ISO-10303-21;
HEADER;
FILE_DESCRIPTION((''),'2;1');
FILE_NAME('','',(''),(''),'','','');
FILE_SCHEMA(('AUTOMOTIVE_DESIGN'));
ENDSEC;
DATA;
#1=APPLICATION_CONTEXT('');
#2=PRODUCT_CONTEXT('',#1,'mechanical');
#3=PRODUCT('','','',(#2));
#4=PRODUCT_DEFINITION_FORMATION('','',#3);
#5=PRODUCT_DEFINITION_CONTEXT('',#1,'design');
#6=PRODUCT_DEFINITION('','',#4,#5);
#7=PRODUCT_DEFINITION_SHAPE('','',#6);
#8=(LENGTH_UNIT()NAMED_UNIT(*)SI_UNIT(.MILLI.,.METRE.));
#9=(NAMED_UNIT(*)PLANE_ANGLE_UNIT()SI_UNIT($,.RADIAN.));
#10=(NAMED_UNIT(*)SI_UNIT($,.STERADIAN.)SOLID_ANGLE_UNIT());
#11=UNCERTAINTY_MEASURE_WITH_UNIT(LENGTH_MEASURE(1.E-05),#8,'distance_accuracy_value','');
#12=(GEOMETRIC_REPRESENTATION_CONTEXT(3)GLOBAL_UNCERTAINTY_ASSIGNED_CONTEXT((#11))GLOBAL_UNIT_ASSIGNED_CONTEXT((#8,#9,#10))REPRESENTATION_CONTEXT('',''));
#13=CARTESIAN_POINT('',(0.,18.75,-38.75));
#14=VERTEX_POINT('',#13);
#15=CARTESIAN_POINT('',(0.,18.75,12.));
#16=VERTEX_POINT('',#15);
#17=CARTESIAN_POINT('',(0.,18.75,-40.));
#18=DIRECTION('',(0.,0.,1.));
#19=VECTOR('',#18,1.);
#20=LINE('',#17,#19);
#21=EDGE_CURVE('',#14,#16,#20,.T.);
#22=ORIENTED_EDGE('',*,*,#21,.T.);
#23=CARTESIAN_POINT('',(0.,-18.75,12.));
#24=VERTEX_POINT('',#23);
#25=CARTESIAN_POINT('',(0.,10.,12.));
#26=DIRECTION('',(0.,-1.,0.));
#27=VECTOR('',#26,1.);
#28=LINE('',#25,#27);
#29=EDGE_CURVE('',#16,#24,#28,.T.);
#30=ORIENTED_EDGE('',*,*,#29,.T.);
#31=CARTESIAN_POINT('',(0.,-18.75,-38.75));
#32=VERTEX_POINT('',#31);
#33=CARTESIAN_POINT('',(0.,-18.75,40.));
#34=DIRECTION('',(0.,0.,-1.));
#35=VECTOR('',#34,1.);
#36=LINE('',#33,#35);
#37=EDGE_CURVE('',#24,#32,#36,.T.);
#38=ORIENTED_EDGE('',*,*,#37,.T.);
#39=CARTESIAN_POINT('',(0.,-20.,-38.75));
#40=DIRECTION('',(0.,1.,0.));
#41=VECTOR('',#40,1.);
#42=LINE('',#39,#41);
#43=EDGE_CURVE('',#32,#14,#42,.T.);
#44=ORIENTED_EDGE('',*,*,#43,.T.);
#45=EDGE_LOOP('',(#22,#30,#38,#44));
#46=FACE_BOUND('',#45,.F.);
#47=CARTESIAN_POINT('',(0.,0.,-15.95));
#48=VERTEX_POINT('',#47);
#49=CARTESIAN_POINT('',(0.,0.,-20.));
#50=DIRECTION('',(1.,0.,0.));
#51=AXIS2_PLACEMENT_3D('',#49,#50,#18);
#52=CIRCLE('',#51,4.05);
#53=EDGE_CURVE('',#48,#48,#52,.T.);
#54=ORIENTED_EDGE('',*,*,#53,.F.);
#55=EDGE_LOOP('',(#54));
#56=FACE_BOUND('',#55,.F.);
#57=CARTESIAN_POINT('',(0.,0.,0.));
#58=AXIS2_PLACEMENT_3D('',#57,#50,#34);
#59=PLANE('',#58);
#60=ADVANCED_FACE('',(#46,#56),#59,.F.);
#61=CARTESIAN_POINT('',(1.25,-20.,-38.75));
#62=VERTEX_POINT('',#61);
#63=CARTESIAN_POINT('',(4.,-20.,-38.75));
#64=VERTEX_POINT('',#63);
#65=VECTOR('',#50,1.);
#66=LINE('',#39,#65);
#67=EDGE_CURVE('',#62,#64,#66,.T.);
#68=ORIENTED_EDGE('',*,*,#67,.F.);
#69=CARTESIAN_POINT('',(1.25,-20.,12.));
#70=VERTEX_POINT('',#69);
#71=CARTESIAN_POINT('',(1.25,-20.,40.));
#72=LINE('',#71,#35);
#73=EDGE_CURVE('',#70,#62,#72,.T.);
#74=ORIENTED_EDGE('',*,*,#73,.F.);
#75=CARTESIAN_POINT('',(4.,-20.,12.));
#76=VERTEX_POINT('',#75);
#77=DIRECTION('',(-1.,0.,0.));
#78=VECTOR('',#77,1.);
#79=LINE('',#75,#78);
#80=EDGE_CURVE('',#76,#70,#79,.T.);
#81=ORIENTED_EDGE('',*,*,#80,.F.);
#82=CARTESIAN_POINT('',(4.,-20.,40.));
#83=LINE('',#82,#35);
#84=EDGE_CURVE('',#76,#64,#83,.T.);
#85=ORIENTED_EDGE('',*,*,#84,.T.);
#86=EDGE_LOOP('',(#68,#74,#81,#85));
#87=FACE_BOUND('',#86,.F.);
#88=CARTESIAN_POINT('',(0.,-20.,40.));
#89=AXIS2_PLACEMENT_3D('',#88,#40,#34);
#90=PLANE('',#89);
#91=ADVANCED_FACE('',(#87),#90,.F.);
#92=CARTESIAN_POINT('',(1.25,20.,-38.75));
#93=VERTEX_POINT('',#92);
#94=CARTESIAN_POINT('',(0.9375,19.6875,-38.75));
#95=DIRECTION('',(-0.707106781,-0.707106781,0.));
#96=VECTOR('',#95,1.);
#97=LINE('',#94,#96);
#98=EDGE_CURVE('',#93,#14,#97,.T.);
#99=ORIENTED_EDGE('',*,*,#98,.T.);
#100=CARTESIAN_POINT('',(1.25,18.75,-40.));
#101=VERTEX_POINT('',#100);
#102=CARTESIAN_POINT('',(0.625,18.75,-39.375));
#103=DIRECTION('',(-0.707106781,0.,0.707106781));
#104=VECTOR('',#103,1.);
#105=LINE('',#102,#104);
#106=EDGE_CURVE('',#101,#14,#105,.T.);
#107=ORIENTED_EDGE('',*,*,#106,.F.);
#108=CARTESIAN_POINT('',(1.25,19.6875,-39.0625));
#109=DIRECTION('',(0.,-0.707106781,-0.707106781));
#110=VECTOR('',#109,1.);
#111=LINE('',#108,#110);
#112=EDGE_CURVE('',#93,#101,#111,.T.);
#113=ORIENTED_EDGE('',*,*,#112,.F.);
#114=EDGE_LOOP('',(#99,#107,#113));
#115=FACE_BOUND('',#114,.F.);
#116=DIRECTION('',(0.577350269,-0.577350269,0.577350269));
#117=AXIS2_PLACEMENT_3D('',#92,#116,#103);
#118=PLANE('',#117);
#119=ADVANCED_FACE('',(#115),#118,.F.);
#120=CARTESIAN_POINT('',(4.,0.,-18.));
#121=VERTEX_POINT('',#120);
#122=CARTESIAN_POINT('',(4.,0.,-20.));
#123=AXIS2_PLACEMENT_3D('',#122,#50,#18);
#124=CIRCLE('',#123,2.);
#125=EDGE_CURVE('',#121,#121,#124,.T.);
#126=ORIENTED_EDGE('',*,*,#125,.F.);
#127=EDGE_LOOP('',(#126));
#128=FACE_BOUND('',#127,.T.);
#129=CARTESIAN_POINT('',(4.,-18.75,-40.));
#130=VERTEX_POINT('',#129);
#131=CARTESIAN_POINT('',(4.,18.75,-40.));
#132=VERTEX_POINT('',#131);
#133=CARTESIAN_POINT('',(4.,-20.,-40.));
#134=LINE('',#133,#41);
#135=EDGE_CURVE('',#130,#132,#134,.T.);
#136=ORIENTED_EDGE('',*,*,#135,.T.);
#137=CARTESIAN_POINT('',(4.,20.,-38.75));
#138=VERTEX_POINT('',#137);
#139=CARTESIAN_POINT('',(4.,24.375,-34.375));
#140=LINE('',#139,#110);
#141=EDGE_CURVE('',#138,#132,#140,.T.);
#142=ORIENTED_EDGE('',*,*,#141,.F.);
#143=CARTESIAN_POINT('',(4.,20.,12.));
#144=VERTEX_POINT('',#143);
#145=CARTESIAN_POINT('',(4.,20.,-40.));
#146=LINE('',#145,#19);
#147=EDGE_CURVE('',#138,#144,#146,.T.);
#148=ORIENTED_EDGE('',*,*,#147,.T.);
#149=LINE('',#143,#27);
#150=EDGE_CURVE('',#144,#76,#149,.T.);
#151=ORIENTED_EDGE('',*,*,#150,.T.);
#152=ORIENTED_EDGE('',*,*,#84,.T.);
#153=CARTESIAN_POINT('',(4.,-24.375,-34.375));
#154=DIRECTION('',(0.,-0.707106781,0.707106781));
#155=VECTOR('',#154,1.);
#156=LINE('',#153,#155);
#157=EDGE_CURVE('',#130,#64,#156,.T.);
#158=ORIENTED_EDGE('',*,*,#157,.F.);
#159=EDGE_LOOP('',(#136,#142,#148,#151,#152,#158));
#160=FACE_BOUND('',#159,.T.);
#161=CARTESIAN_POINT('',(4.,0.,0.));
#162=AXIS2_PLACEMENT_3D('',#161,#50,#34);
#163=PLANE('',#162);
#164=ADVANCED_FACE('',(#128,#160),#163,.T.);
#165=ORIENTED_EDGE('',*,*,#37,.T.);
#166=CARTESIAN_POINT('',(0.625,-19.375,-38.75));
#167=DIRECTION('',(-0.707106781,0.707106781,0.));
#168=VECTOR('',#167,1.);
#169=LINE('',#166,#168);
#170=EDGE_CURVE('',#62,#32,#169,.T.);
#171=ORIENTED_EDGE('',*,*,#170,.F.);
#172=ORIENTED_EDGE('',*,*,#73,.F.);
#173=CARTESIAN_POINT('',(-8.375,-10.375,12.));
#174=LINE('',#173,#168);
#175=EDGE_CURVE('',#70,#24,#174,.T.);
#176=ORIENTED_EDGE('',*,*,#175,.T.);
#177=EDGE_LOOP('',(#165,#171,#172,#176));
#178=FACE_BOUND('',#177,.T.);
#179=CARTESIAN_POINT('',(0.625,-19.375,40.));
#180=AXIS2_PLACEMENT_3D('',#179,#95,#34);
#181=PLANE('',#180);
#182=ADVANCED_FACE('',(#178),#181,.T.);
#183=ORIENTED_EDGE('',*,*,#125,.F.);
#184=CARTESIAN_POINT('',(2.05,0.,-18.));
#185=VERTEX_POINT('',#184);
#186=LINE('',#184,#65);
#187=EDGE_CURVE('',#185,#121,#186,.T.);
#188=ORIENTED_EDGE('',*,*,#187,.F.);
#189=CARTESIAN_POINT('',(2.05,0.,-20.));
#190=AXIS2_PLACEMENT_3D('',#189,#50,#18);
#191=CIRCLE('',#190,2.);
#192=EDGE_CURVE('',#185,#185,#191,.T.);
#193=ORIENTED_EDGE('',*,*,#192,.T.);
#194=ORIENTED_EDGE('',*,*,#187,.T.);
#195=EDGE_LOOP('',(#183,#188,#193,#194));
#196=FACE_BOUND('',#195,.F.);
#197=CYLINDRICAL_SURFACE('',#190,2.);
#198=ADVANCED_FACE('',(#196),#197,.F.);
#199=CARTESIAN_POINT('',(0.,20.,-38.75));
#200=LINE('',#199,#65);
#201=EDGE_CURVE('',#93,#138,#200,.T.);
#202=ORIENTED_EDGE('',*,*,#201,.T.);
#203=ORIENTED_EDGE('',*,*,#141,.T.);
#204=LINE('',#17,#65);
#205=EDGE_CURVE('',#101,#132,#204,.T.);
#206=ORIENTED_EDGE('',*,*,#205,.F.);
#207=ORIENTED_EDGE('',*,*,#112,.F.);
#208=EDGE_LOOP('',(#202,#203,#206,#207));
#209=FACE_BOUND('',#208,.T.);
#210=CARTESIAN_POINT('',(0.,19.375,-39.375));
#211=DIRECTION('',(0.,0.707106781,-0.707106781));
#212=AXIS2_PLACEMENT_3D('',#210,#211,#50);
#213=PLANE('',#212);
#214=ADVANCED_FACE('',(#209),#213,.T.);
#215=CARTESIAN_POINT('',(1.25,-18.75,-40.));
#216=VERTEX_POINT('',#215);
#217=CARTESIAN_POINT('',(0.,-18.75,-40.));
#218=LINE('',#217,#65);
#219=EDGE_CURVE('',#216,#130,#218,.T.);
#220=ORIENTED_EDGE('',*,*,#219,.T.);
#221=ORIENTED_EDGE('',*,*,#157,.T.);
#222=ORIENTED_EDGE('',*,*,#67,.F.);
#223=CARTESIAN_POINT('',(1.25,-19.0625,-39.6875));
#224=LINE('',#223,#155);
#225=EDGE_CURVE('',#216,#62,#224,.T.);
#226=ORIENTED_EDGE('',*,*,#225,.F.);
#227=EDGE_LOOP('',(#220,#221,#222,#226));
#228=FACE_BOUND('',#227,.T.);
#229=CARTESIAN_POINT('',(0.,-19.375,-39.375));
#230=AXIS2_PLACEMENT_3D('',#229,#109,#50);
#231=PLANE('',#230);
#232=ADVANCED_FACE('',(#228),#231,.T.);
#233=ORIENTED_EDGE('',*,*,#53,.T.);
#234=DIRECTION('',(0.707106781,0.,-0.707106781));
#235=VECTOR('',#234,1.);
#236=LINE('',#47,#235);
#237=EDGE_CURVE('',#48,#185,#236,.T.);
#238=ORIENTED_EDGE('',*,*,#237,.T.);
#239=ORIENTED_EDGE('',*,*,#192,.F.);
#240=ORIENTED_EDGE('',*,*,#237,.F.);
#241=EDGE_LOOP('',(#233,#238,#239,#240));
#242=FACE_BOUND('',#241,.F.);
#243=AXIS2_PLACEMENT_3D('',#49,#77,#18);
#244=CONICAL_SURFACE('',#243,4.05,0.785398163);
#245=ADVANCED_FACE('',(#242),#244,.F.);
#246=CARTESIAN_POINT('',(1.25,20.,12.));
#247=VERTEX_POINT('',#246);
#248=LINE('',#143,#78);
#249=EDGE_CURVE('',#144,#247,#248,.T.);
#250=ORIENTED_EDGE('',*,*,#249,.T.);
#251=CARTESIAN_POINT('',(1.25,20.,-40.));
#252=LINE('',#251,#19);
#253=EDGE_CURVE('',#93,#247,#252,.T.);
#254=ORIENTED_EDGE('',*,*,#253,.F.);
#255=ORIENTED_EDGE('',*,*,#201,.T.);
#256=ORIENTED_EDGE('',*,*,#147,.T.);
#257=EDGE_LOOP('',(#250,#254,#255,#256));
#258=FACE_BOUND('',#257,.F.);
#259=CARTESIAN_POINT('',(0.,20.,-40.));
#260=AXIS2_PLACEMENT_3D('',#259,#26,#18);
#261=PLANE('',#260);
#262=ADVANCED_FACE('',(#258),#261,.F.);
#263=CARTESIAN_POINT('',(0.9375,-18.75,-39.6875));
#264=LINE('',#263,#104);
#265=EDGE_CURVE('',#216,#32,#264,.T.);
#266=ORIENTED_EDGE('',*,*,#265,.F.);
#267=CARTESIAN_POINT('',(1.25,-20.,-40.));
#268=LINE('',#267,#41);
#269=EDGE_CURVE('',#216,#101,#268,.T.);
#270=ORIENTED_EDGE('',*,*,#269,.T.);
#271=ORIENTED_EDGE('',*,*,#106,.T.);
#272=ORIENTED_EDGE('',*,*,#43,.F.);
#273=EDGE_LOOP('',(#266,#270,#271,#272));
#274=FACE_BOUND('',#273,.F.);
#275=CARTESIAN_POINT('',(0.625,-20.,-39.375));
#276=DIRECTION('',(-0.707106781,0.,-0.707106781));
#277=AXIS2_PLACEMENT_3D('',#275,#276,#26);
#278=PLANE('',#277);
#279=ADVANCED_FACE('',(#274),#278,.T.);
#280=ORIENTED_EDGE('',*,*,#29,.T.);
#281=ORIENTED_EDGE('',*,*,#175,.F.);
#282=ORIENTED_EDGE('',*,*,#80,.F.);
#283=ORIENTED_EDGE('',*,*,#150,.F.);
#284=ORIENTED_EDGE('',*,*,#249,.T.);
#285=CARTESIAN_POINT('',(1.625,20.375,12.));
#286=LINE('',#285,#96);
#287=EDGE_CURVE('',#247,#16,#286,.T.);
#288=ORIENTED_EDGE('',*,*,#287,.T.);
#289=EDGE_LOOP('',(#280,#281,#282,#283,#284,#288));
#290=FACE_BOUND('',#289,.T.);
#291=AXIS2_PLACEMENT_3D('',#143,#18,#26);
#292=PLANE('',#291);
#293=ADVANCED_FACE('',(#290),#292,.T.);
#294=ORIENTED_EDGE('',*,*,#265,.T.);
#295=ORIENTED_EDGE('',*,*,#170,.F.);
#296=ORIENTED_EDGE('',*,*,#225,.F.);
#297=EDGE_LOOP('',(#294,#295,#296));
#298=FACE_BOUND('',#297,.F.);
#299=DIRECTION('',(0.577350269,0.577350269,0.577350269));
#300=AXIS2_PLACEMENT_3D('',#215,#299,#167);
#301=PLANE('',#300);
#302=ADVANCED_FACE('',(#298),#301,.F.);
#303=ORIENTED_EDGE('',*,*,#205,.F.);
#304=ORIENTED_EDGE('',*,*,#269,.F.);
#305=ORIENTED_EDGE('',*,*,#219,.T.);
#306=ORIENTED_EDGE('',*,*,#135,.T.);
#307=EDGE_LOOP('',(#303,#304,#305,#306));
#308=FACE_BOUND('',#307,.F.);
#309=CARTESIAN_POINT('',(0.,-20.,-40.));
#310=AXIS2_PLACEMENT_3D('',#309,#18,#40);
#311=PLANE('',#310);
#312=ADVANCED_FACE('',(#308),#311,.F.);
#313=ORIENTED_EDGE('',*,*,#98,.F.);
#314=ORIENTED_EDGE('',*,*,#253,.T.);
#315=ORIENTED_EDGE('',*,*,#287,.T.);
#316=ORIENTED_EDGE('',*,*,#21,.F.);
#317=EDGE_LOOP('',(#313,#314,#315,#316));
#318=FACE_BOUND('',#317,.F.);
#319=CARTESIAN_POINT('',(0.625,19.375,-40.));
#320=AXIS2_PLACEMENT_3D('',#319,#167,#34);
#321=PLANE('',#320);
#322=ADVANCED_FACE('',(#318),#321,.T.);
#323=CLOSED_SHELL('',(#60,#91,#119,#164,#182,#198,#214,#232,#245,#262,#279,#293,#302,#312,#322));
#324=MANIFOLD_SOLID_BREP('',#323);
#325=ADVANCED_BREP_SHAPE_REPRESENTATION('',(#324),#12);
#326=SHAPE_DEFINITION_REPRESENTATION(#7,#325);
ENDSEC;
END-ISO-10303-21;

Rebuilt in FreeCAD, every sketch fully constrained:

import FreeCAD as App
import Part
import Sketcher


def edges_at(feature, points):
    """Names of the edges that pass closest to the given points."""
    edges = feature.Shape.Edges
    near = lambda p: min(range(len(edges)), key=lambda i: edges[i].distToShape(Part.Vertex(*p))[0])
    return sorted({f"Edge{near(p) + 1}" for p in points})


def add_polygon(sketch, points):
    """Adds a closed chain of lines whose ends are joined by coincident constraints."""
    first, n = sketch.GeometryCount, len(points)
    for a, b in zip(points, points[1:] + points[:1]):
        sketch.addGeometry(Part.LineSegment(App.Vector(*a, 0), App.Vector(*b, 0)), False)
    for i in range(n):
        sketch.addConstraint(Sketcher.Constraint("Coincident", first + i, 2, first + (i + 1) % n, 1))

doc = App.newDocument("Part")
body = doc.addObject("PartDesign::Body", "Body")

# Sketch on YZ plane
sketch1 = body.newObject("Sketcher::SketchObject", "Sketch")
sketch1.AttachmentSupport = (doc.getObject("YZ_Plane"), [""])
sketch1.MapMode = "FlatFace"
add_polygon(sketch1, [(20, -40), (20, 40), (-20, 40), (-20, -40)])  # lines 0-3
sketch1.addConstraint([
    Sketcher.Constraint("Vertical", 0),
    Sketcher.Constraint("Horizontal", 1),
    Sketcher.Constraint("Vertical", 2),
    Sketcher.Constraint("Horizontal", 3),
    Sketcher.Constraint("Symmetric", 0, 2, 2, 2, -1, 1),
    Sketcher.Constraint("DistanceX", 1, 2, 1, 1, 40.0),
    Sketcher.Constraint("DistanceY", 0, 1, 0, 2, 80.0),
])
pad1 = body.newObject("PartDesign::Pad", "Pad")
pad1.Profile = sketch1
pad1.Length = 4

# Sketch on YZ plane
sketch2 = body.newObject("Sketcher::SketchObject", "Sketch001")
sketch2.AttachmentSupport = (doc.getObject("YZ_Plane"), [""])
sketch2.MapMode = "FlatFace"
sketch2.addGeometry(Part.Circle(App.Vector(0, 20, 0), App.Vector(0, 0, 1), 2), False)
sketch2.addConstraint([
    Sketcher.Constraint("PointOnObject", 0, 3, -2),
    Sketcher.Constraint("Diameter", 0, 4.0),
    Sketcher.Constraint("DistanceY", -1, 1, 0, 3, 20.0),
])
doc.recompute()
hole = body.newObject("PartDesign::Hole", "Hole")
hole.Profile = sketch2
hole.ThreadType = "None"
hole.Diameter = 4
hole.DepthType = "Dimension"
hole.Depth = 4
hole.DrillPoint = "Flat"
hole.HoleCutType = "Countersink"
hole.HoleCutDiameter = 8.1
hole.HoleCutCountersinkAngle = 90
hole.Reversed = True

# Sketch on YZ plane
sketch3 = body.newObject("Sketcher::SketchObject", "Sketch002")
sketch3.AttachmentSupport = (doc.getObject("YZ_Plane"), [""])
sketch3.MapMode = "FlatFace"
sketch3.addGeometry(Part.Circle(App.Vector(0, -20, 0), App.Vector(0, 0, 1), 2), False)
sketch3.addConstraint([
    Sketcher.Constraint("PointOnObject", 0, 3, -2),
    Sketcher.Constraint("Diameter", 0, 4.0),
    Sketcher.Constraint("DistanceY", 0, 3, -1, 1, 20.0),
])
doc.recompute()
hole2 = body.newObject("PartDesign::Hole", "Hole001")
hole2.Profile = sketch3
hole2.ThreadType = "None"
hole2.Diameter = 4
hole2.DepthType = "Dimension"
hole2.Depth = 4
hole2.DrillPoint = "Flat"
hole2.HoleCutType = "Countersink"
hole2.HoleCutDiameter = 8.1
hole2.HoleCutCountersinkAngle = 90
hole2.Reversed = True
doc.recompute()

chamfer = body.newObject("PartDesign::Chamfer", "Chamfer")
chamfer.Base = (hole2, edges_at(hole2, [
    (2, -20, 40),
    (0, -20, 0),
    (0, 0, 40),
    (2, -20, -40),
    (0, 0, -40),
    (2, 20, -40),
    (0, 20, 0),
    (2, 20, 40),
]))
chamfer.Size = 1.25

# Sketch on YZ plane
sketch4 = body.newObject("Sketcher::SketchObject", "Sketch003")
sketch4.AttachmentSupport = (doc.getObject("YZ_Plane"), [""])
sketch4.MapMode = "FlatFace"
sketch4.AttachmentOffset = App.Placement(App.Vector(0, 0, 4), App.Rotation())
add_polygon(sketch4, [(-20, 40), (-20, 12), (20, 12), (20, 40)])  # lines 0-3
sketch4.addConstraint([
    Sketcher.Constraint("Vertical", 0),
    Sketcher.Constraint("Horizontal", 1),
    Sketcher.Constraint("Vertical", 2),
    Sketcher.Constraint("Horizontal", 3),
    Sketcher.Constraint("DistanceX", 1, 1, 1, 2, 40.0),
    Sketcher.Constraint("DistanceY", 0, 2, 0, 1, 28.0),
    Sketcher.Constraint("DistanceX", 0, 2, -1, 1, 20.0),
    Sketcher.Constraint("DistanceY", -1, 1, 0, 2, 12.0),
])
pocket1 = body.newObject("PartDesign::Pocket", "Pocket")
pocket1.Profile = sketch4
pocket1.Type = "ThroughAll"

doc.recompute()
